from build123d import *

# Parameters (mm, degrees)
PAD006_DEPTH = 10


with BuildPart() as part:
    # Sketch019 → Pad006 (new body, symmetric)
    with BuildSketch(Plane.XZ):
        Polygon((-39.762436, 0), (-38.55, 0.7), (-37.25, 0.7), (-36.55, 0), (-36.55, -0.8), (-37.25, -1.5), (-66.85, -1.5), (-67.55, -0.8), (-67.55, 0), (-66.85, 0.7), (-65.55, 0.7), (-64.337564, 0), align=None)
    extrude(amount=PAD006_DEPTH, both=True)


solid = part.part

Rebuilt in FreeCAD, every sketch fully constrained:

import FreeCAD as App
import Part
import Sketcher
from FreeCAD import Vector
Q = App.Units.Quantity


def add_polygon(sketch, points):
    """Adds a closed chain of lines whose ends are joined by coincident constraints."""
    first, n = sketch.GeometryCount, len(points)
    for a, b in zip(points, points[1:] + points[:1]):
        sketch.addGeometry(Part.LineSegment(App.Vector(*a, 0), App.Vector(*b, 0)), False)
    for i in range(n):
        sketch.addConstraint(Sketcher.Constraint("Coincident", first + i, 2, first + (i + 1) % n, 1))

doc = App.newDocument("Part")
body = doc.addObject("PartDesign::Body", "Body")

# Sketch on XZ plane
sketch1 = body.newObject("Sketcher::SketchObject", "Sketch")
sketch1.AttachmentSupport = (doc.getObject("XZ_Plane"), [""])
sketch1.MapMode = "FlatFace"
add_polygon(sketch1, [(-38.55, 0.7), (-39.762436, 0), (-64.337564, 0), (-65.55, 0.7), (-66.85, 0.7), (-67.55, 0), (-67.55, -0.8), (-66.85, -1.5), (-37.25, -1.5), (-36.55, -0.8), (-36.55, 0), (-37.25, 0.7)])  # lines 0-11
sketch1.addConstraint(Sketcher.Constraint("Horizontal", 1))
sketch1.addConstraint(Sketcher.Constraint("Horizontal", 3))
sketch1.addConstraint(Sketcher.Constraint("Vertical", 5))
sketch1.addConstraint(Sketcher.Constraint("Horizontal", 7))
sketch1.addConstraint(Sketcher.Constraint("Vertical", 9))
sketch1.addConstraint(Sketcher.Constraint("Horizontal", 11))
sketch1.addConstraint(Sketcher.Constraint("PointOnObject", 0, 2, -1))
sketch1.addConstraint(Sketcher.Constraint("PointOnObject", 4, 2, -1))
sketch1.addConstraint(Sketcher.Constraint("PointOnObject", 9, 2, -1))
sketch1.addConstraint(Sketcher.Constraint("Perpendicular", 4, 6))
sketch1.addConstraint(Sketcher.Constraint("Perpendicular", 6, 8))
sketch1.addConstraint(Sketcher.Constraint("Perpendicular", 8, 10))
sketch1.addConstraint(Sketcher.Constraint("Horizontal", 5, 2, 8, 2))
sketch1.addConstraint(Sketcher.Constraint("Horizontal", 3, 2, 10, 2))
sketch1.addConstraint(Sketcher.Constraint("Vertical", 3, 2, 6, 2))
sketch1.addConstraint(Sketcher.Constraint("Vertical", 7, 2, 10, 2))
sketch1.addConstraint(Sketcher.Constraint("Equal", 3, 11))
sketch1.addConstraint(Sketcher.Constraint("Equal", 0, 2))
sketch1.addConstraint(Sketcher.Constraint("Angle", 0, Q("-150.000009 deg")))
sketch1.addConstraint(Sketcher.Constraint("DistanceX", 3, 2, 3, 1, Q("1.3 mm")))
sketch1.addConstraint(Sketcher.Constraint("DistanceX", 7, 1, 7, 2, Q("29.6 mm")))
sketch1.addConstraint(Sketcher.Constraint("DistanceY", 5, 2, 5, 1, Q("0.8 mm")))
sketch1.addConstraint(Sketcher.Constraint("DistanceX", 4, 2, 2, 2, Q("2 mm")))
sketch1.addConstraint(Sketcher.Constraint("DistanceX", 2, 2, -1, 1, Q("65.55 mm")))
pad1 = body.newObject("PartDesign::Pad", "Pad")
pad1.Profile = sketch1
pad1.Length = 20
pad1.Midplane = True

doc.recompute()
